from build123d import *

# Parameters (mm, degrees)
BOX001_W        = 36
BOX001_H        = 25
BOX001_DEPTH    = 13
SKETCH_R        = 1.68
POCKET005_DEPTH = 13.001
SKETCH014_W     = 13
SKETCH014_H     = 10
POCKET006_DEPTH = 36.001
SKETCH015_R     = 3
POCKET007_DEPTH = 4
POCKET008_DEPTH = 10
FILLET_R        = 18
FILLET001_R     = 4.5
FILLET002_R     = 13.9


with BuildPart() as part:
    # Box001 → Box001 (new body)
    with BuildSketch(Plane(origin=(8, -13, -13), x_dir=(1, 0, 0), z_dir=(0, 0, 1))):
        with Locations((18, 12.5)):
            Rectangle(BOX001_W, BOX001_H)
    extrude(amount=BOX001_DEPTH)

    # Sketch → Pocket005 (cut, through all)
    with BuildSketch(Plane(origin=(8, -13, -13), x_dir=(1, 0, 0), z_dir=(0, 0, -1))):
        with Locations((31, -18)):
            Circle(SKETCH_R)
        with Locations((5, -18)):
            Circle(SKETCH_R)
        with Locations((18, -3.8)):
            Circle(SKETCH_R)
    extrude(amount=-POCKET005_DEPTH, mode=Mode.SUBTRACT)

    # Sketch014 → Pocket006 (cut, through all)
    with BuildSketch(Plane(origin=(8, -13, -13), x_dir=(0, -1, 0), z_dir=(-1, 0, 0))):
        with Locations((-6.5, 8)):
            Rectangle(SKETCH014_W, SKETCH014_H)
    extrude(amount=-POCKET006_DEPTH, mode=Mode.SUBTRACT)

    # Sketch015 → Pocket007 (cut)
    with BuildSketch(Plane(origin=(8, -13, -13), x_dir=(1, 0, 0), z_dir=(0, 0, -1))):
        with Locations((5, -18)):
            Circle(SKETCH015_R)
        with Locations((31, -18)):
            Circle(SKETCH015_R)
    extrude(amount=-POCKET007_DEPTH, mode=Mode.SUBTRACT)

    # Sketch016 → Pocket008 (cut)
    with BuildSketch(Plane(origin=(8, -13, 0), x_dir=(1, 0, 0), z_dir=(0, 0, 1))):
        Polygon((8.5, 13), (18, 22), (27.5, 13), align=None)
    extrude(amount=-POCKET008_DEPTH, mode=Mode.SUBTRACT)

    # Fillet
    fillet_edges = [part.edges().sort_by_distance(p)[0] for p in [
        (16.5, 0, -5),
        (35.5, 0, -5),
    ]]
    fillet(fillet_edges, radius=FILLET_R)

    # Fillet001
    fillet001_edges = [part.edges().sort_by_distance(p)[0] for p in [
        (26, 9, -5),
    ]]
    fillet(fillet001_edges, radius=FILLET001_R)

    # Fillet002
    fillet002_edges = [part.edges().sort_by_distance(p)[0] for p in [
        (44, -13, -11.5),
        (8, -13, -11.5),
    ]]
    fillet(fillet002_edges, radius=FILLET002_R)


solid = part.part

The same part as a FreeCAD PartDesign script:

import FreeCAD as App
import Part
import Sketcher
from FreeCAD import Vector


def edges_at(feature, points):
    """Names of the edges that pass closest to the given points."""
    edges = feature.Shape.Edges
    near = lambda p: min(range(len(edges)), key=lambda i: edges[i].distToShape(Part.Vertex(*p))[0])
    return sorted({f"Edge{near(p) + 1}" for p in points})

doc = App.newDocument("Part")
body = doc.addObject("PartDesign::Body", "Body")

# Sketch on XY plane
sketch1 = body.newObject("Sketcher::SketchObject", "Sketch")
sketch1.AttachmentSupport = (doc.getObject("XY_Plane"), [""])
sketch1.MapMode = "FlatFace"
sketch1.AttachmentOffset = App.Placement(Vector(0, 0, -13), App.Rotation())
sketch1.addGeometry([
    Part.LineSegment(Vector(8, 12, 0), Vector(8, -13, 0)),
    Part.LineSegment(Vector(8, -13, 0), Vector(44, -13, 0)),
    Part.LineSegment(Vector(44, -13, 0), Vector(44, 12, 0)),
    Part.LineSegment(Vector(44, 12, 0), Vector(8, 12, 0)),
], False)
sketch1.addConstraint([
    Sketcher.Constraint("Coincident", 0, 2, 1, 1),
    Sketcher.Constraint("Coincident", 1, 2, 2, 1),
    Sketcher.Constraint("Coincident", 2, 2, 3, 1),
    Sketcher.Constraint("Coincident", 3, 2, 0, 1),
    Sketcher.Constraint("Vertical", 0),
    Sketcher.Constraint("Horizontal", 1),
    Sketcher.Constraint("Vertical", 2),
    Sketcher.Constraint("Horizontal", 3),
    Sketcher.Constraint("DistanceX", 1, 1, 1, 2, 36.0),
    Sketcher.Constraint("DistanceY", 0, 2, 0, 1, 25.0),
    Sketcher.Constraint("DistanceX", -1, 1, 0, 2, 8.0),
    Sketcher.Constraint("DistanceY", 0, 2, -1, 1, 13.0),
])
pad1 = body.newObject("PartDesign::Pad", "Pad")
pad1.Profile = sketch1
pad1.Length = 13

# Sketch on XY plane
sketch2 = body.newObject("Sketcher::SketchObject", "Sketch001")
sketch2.AttachmentSupport = (doc.getObject("XY_Plane"), [""])
sketch2.MapMode = "FlatFace"
sketch2.AttachmentOffset = App.Placement(Vector(0, 0, -13), App.Rotation())
sketch2.addGeometry([
    Part.Circle(Vector(39, 5, 0), Vector(0, 0, 1), 1.68),
    Part.Circle(Vector(13, 5, 0), Vector(0, 0, 1), 1.68),
    Part.Circle(Vector(26, -9.2, 0), Vector(0, 0, 1), 1.68),
], False)
sketch2.addConstraint([
    Sketcher.Constraint("Equal", 0, 1),
    Sketcher.Constraint("Equal", 1, 2),
    Sketcher.Constraint("Horizontal", 0, 3, 1, 3),
    Sketcher.Constraint("Diameter", 0, 3.36),
    Sketcher.Constraint("DistanceX", -1, 1, 0, 3, 39.0),
    Sketcher.Constraint("DistanceY", -1, 1, 0, 3, 5.0),
    Sketcher.Constraint("DistanceX", -1, 1, 1, 3, 13.0),
    Sketcher.Constraint("DistanceX", -1, 1, 2, 3, 26.0),
    Sketcher.Constraint("DistanceY", 2, 3, -1, 1, 9.2),
])
pocket1 = body.newObject("PartDesign::Pocket", "Pocket")
pocket1.Profile = sketch2
pocket1.Type = "ThroughAll"
pocket1.Reversed = True

# Sketch on YZ plane
sketch3 = body.newObject("Sketcher::SketchObject", "Sketch002")
sketch3.AttachmentSupport = (doc.getObject("YZ_Plane"), [""])
sketch3.MapMode = "FlatFace"
sketch3.AttachmentOffset = App.Placement(Vector(0, 0, 8), App.Rotation())
sketch3.addGeometry([
    Part.LineSegment(Vector(0, 0, 0), Vector(0, -10, 0)),
    Part.LineSegment(Vector(0, -10, 0), Vector(-13, -10, 0)),
    Part.LineSegment(Vector(-13, -10, 0), Vector(-13, 0, 0)),
    Part.LineSegment(Vector(-13, 0, 0), Vector(0, 0, 0)),
], False)
sketch3.addConstraint([
    Sketcher.Constraint("Coincident", 0, 2, 1, 1),
    Sketcher.Constraint("Coincident", 1, 2, 2, 1),
    Sketcher.Constraint("Coincident", 2, 2, 3, 1),
    Sketcher.Constraint("Coincident", 3, 2, 0, 1),
    Sketcher.Constraint("Vertical", 0),
    Sketcher.Constraint("Horizontal", 1),
    Sketcher.Constraint("Vertical", 2),
    Sketcher.Constraint("Horizontal", 3),
    Sketcher.Constraint("Coincident", 3, 2, -1, 1),
    Sketcher.Constraint("DistanceX", 1, 2, 1, 1, 13.0),
    Sketcher.Constraint("DistanceY", 0, 2, 0, 1, 10.0),
])
pocket2 = body.newObject("PartDesign::Pocket", "Pocket001")
pocket2.Profile = sketch3
pocket2.Type = "ThroughAll"
pocket2.Reversed = True

# Sketch on XY plane
sketch4 = body.newObject("Sketcher::SketchObject", "Sketch003")
sketch4.AttachmentSupport = (doc.getObject("XY_Plane"), [""])
sketch4.MapMode = "FlatFace"
sketch4.AttachmentOffset = App.Placement(Vector(0, 0, -13), App.Rotation())
sketch4.addGeometry([
    Part.Circle(Vector(13, 5, 0), Vector(0, 0, 1), 3),
    Part.Circle(Vector(39, 5, 0), Vector(0, 0, 1), 3),
], False)
sketch4.addConstraint([
    Sketcher.Constraint("Equal", 0, 1),
    Sketcher.Constraint("Horizontal", 0, 3, 1, 3),
    Sketcher.Constraint("Diameter", 0, 6.0),
    Sketcher.Constraint("DistanceX", -1, 1, 0, 3, 13.0),
    Sketcher.Constraint("DistanceY", -1, 1, 0, 3, 5.0),
    Sketcher.Constraint("DistanceX", -1, 1, 1, 3, 39.0),
])
pocket3 = body.newObject("PartDesign::Pocket", "Pocket002")
pocket3.Profile = sketch4
pocket3.Length = 4
pocket3.Reversed = True

# Sketch on XY plane
sketch5 = body.newObject("Sketcher::SketchObject", "Sketch004")
sketch5.AttachmentSupport = (doc.getObject("XY_Plane"), [""])
sketch5.MapMode = "FlatFace"
sketch5.addGeometry([
    Part.LineSegment(Vector(26, 9, 0), Vector(16.5, 0, 0)),
    Part.LineSegment(Vector(16.5, 0, 0), Vector(35.5, 0, 0)),
    Part.LineSegment(Vector(35.5, 0, 0), Vector(26, 9, 0)),
], False)
sketch5.addConstraint([
    Sketcher.Constraint("Coincident", 0, 2, 1, 1),
    Sketcher.Constraint("Coincident", 1, 2, 2, 1),
    Sketcher.Constraint("Coincident", 2, 2, 0, 1),
    Sketcher.Constraint("Horizontal", 1),
    Sketcher.Constraint("PointOnObject", 0, 2, -1),
    Sketcher.Constraint("Equal", 0, 2),
    Sketcher.Constraint("DistanceX", 1, 1, 1, 2, 19.0),
    Sketcher.Constraint("DistanceX", -1, 1, 2, 2, 26.0),
    Sketcher.Constraint("DistanceY", -1, 1, 2, 2, 9.0),
])
pocket4 = body.newObject("PartDesign::Pocket", "Pocket003")
pocket4.Profile = sketch5
pocket4.Length = 10
doc.recompute()

fillet = body.newObject("PartDesign::Fillet", "Fillet")
fillet.Base = (pocket4, edges_at(pocket4, [(16.5, 0, -5), (35.5, 0, -5)]))
fillet.Radius = 18
doc.recompute()

fillet2 = body.newObject("PartDesign::Fillet", "Fillet001")
fillet2.Base = (fillet, edges_at(fillet, [(26, 9, -5)]))
fillet2.Radius = 4.5
doc.recompute()

fillet3 = body.newObject("PartDesign::Fillet", "Fillet002")
fillet3.Base = (fillet2, edges_at(fillet2, [(44, -13, -11.5), (8, -13, -11.5)]))
fillet3.Radius = 13.9

doc.recompute()
